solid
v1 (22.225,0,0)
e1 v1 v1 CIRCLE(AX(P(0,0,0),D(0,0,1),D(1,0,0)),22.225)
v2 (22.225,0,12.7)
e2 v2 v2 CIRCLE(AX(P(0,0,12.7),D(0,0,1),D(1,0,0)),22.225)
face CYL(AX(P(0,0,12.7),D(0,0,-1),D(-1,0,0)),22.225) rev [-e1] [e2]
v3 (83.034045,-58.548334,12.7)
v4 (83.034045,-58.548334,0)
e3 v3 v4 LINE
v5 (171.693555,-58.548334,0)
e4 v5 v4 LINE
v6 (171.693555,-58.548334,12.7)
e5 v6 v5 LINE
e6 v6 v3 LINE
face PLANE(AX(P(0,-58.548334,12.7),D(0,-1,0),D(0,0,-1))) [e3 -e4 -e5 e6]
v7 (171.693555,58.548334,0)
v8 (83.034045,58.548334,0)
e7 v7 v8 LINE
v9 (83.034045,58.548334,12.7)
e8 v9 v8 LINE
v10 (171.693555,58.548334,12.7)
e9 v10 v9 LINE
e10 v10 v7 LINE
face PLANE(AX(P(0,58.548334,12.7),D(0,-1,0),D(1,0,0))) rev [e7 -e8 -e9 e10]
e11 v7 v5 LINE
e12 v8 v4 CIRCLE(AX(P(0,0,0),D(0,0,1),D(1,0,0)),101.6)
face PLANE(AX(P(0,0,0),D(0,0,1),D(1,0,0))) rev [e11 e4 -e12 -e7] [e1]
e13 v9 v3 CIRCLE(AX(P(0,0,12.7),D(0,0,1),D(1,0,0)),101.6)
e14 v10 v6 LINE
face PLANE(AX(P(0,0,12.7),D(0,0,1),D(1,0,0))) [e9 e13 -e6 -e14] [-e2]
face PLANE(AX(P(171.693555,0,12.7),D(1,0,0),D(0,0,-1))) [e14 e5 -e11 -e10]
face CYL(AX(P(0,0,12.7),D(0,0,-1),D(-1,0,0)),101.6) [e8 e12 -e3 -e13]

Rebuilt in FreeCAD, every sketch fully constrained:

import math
import FreeCAD as App
import Part
import Sketcher

V = App.Vector
Q = App.Units.Quantity

doc = App.newDocument("Part")
params = doc.addObject("Spreadsheet::Sheet", "Params")
for row, (alias, value) in enumerate([
    ("sketch1_radius", "4 in"),
    ("sketch1_diameter", "1.75 in"),
    ("pad1_length", "0.5 in"),
], start=1):
    params.set(f"A{row}", alias)
    params.set(f"B{row}", "=" + value)
    params.setAlias(f"B{row}", alias)

body = doc.addObject("PartDesign::Body", "Body")

sketch1 = body.newObject("Sketcher::SketchObject", "Sketch")
sketch1.AttachmentSupport = (doc.getObject("XY_Plane"), [""])
sketch1.MapMode = "FlatFace"
sketch1.addGeometry([
    Part.LineSegment(V(83.034045, -58.548334, 0), V(171.693555, -58.548334, 0)),
    Part.LineSegment(V(171.693555, -58.548334, 0), V(171.693555, 58.548334, 0)),
    Part.LineSegment(V(171.693555, 58.548334, 0), V(83.034045, 58.548334, 0)),
    Part.ArcOfCircle(Part.Circle(V(0, 0, 0), V(0, 0, 1), 101.6), math.radians(35.188138), math.radians(324.811862)),
    Part.Circle(V(0, 0, 0), V(0, 0, 1), 22.225),
], False)
sketch1.addConstraint([
    Sketcher.Constraint("Coincident", 0, 2, 1, 1),
    Sketcher.Constraint("Coincident", 1, 2, 2, 1),
    Sketcher.Constraint("Coincident", 2, 2, 3, 1),
    Sketcher.Constraint("Coincident", 3, 2, 0, 1),
    Sketcher.Constraint("Horizontal", 0),
    Sketcher.Constraint("Vertical", 1),
    Sketcher.Constraint("Horizontal", 2),
    Sketcher.Constraint("Coincident", 3, 3, -1, 1),
    Sketcher.Constraint("Coincident", 4, 3, -1, 1),
    Sketcher.Constraint("Vertical", 2, 2, 3, 2),
    Sketcher.Constraint("Radius", 3, Q("4 in")),
    Sketcher.Constraint("Diameter", 4, Q("1.75 in")),
    Sketcher.Constraint("DistanceX", 0, 1, 0, 2, Q("88.65951 mm")),
    Sketcher.Constraint("DistanceY", 1, 1, 1, 2, Q("117.096669 mm")),
])
sketch1.setExpression("Constraints[10]", "Params.sketch1_radius")
sketch1.setExpression("Constraints[11]", "Params.sketch1_diameter")
pad1 = body.newObject("PartDesign::Pad", "Pad")
pad1.Profile = sketch1
pad1.setExpression("Length", "Params.pad1_length")

doc.recompute()
